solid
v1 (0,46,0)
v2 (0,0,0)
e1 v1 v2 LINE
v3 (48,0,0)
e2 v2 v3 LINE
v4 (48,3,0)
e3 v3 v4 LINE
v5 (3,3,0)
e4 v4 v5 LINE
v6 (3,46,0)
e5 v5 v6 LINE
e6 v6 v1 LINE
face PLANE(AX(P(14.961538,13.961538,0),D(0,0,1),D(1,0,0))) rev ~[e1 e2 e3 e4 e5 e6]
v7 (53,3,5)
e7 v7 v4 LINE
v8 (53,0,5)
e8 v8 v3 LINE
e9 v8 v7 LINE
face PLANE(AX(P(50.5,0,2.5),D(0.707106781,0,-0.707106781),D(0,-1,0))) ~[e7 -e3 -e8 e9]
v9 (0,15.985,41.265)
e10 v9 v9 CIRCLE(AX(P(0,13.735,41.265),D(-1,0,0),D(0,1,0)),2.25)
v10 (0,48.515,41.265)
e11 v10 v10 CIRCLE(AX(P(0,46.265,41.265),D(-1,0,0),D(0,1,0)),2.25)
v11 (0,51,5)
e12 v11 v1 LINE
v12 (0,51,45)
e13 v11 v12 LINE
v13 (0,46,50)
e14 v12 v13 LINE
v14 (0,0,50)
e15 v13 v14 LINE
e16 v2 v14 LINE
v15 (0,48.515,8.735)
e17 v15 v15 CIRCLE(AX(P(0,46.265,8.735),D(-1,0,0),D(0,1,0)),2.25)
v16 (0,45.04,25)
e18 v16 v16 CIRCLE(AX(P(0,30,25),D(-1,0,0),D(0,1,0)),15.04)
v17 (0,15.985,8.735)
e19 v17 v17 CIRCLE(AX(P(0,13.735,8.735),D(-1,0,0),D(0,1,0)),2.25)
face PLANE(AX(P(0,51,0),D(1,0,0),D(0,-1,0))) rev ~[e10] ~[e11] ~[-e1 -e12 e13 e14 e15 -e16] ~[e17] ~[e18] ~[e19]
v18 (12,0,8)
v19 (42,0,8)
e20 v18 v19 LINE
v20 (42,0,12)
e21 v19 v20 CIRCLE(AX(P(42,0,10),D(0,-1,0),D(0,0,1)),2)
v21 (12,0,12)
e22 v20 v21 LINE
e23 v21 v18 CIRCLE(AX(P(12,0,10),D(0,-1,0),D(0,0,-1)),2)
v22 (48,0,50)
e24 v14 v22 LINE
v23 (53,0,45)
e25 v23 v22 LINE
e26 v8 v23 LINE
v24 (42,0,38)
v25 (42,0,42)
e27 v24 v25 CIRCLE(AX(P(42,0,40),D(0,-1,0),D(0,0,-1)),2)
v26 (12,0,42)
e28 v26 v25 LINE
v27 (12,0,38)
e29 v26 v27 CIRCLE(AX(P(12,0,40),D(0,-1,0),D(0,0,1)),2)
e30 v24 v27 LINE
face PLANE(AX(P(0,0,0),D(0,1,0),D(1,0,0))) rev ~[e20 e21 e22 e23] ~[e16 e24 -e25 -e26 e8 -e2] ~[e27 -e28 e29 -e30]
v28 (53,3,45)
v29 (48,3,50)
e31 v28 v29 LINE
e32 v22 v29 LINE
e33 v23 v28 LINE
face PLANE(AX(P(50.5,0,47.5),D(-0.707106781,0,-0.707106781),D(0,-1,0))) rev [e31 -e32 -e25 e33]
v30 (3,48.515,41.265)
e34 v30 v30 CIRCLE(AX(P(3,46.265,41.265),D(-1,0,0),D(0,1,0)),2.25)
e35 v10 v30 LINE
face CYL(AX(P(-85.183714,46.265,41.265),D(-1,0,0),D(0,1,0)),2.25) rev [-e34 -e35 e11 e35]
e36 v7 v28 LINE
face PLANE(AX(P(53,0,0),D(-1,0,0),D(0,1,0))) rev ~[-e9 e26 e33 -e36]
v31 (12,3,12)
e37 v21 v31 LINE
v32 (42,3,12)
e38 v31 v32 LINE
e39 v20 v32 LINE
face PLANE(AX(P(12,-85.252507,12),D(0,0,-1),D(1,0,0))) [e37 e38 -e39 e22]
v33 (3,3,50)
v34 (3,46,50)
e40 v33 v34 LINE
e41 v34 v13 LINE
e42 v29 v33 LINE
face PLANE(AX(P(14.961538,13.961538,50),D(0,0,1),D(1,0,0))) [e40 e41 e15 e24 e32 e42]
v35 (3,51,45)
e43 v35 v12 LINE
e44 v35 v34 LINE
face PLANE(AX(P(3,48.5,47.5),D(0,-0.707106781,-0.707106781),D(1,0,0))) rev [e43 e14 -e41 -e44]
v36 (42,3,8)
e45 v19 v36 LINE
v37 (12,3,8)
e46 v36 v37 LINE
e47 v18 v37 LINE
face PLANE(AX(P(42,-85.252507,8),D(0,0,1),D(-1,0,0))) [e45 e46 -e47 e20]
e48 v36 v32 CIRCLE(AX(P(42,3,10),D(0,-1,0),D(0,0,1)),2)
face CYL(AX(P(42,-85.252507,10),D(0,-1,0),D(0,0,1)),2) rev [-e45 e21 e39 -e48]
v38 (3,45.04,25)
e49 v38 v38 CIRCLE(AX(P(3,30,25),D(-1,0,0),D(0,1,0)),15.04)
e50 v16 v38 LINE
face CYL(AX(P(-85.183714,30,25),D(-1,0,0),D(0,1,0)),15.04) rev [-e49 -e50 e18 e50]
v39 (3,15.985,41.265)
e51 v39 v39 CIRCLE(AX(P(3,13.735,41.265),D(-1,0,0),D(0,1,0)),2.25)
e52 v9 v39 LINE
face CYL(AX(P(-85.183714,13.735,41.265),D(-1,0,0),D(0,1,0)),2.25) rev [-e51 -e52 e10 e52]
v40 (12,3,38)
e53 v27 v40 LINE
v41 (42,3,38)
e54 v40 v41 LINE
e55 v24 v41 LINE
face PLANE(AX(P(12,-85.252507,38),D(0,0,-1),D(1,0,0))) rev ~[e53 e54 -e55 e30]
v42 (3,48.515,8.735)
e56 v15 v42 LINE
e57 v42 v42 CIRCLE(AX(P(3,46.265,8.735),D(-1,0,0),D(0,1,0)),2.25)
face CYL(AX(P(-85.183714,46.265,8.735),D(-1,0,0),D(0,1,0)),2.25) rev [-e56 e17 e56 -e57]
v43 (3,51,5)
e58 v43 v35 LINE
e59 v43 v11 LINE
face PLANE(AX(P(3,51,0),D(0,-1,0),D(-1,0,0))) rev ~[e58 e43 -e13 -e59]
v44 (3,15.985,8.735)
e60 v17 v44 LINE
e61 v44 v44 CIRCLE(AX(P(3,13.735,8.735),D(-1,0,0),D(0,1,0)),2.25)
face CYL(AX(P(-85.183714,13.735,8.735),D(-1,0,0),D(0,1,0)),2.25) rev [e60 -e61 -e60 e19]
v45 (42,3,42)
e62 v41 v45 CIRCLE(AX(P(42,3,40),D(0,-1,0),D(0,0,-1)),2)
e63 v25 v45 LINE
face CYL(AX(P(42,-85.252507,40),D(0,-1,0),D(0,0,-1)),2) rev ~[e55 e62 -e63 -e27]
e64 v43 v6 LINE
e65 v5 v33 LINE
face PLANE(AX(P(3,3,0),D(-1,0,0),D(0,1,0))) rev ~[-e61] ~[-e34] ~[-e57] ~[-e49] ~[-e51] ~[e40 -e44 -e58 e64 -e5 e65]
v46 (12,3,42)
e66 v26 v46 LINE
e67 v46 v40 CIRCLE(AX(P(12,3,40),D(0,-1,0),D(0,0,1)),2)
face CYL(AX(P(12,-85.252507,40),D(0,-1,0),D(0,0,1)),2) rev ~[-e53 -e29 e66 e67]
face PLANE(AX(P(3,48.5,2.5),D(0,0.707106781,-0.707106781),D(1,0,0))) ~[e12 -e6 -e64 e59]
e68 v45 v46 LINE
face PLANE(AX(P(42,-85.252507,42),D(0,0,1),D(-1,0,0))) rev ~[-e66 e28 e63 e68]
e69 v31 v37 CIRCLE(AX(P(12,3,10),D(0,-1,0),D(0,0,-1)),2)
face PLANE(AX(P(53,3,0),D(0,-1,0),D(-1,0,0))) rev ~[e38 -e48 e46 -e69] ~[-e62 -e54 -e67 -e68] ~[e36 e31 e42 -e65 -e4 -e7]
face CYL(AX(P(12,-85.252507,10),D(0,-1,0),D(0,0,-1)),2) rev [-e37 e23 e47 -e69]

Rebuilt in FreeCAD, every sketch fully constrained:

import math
import FreeCAD as App
import Part
import Sketcher
from FreeCAD import Vector
Q = App.Units.Quantity


def edges_at(feature, points):
    """Names of the edges that pass closest to the given points."""
    edges = feature.Shape.Edges
    near = lambda p: min(range(len(edges)), key=lambda i: edges[i].distToShape(Part.Vertex(*p))[0])
    return sorted({f"Edge{near(p) + 1}" for p in points})

doc = App.newDocument("Part")
body = doc.addObject("PartDesign::Body", "Body")

# Sketch on XY plane
sketch1 = doc.addObject("Sketcher::SketchObject", "Sketch")
body.addObject(sketch1)
sketch1.AttachmentSupport = (doc.XY_Plane, [""])
sketch1.MapMode = "FlatFace"
sketch1.addGeometry([
    Part.LineSegment(Vector(0, 0, 0), Vector(53, 0, 0)),  # 0
    Part.LineSegment(Vector(53, 0, 0), Vector(53, 3, 0)),  # 1
    Part.LineSegment(Vector(53, 3, 0), Vector(3, 3, 0)),  # 2
    Part.LineSegment(Vector(3, 3, 0), Vector(3, 51, 0)),  # 3
    Part.LineSegment(Vector(3, 51, 0), Vector(0, 51, 0)),  # 4
    Part.LineSegment(Vector(0, 51, 0), Vector(0, 0, 0)),  # 5
], False)
sketch1.addConstraint([
    Sketcher.Constraint("Coincident", 0, 2, 1, 1),
    Sketcher.Constraint("Coincident", 1, 2, 2, 1),
    Sketcher.Constraint("Coincident", 2, 2, 3, 1),
    Sketcher.Constraint("Coincident", 3, 2, 4, 1),
    Sketcher.Constraint("Coincident", 4, 2, 5, 1),
    Sketcher.Constraint("Coincident", 5, 2, 0, 1),
    Sketcher.Constraint("Horizontal", 0),
    Sketcher.Constraint("Vertical", 1),
    Sketcher.Constraint("Horizontal", 2),
    Sketcher.Constraint("Vertical", 3),
    Sketcher.Constraint("Horizontal", 4),
    Sketcher.Constraint("Vertical", 5),
    Sketcher.Constraint("Coincident", 5, 2, -1, 1),
    Sketcher.Constraint("Equal", 4, 1),
    Sketcher.Constraint("DistanceX", 0, 1, 0, 2, Q("53 mm")),
    Sketcher.Constraint("DistanceX", 2, 2, 2, 1, Q("50 mm")),
    Sketcher.Constraint("DistanceY", 3, 1, 3, 2, Q("48 mm")),
])
pad1 = doc.addObject("PartDesign::Pad", "Pad")
body.addObject(pad1)
pad1.Profile = sketch1
pad1.Length = 50
doc.recompute()

chamfer = doc.addObject("PartDesign::Chamfer", "Chamfer")
body.addObject(chamfer)
chamfer.Base = (pad1, edges_at(pad1, [
    (53, 1.5, 50),
    (1.5, 51, 50),
    (1.5, 51, 0),
    (53, 1.5, 0),
]))
chamfer.Size = 5

# Sketch on YZ plane
sketch2 = doc.addObject("Sketcher::SketchObject", "Sketch001")
body.addObject(sketch2)
sketch2.AttachmentSupport = (doc.YZ_Plane, [""])
sketch2.MapMode = "FlatFace"
sketch2.AttachmentOffset = App.Placement(Vector(0, 0, 3), App.Rotation())
sketch2.addGeometry([
    Part.Circle(Vector(30, 25, 0), Vector(0, 0, 1), 15.04),  # 0
    Part.Circle(Vector(46.265, 8.735, 0), Vector(0, 0, 1), 2.25),  # 1
    Part.Circle(Vector(46.265, 41.265, 0), Vector(0, 0, 1), 2.25),  # 2
    Part.Circle(Vector(13.735, 8.735, 0), Vector(0, 0, 1), 2.25),  # 3
    Part.Circle(Vector(13.735, 41.265, 0), Vector(0, 0, 1), 2.25),  # 4
], False)
sketch2.addConstraint([
    Sketcher.Constraint("Equal", 1, 2),
    Sketcher.Constraint("Equal", 2, 3),
    Sketcher.Constraint("Equal", 3, 4),
    Sketcher.Constraint("Horizontal", 1, 3, 3, 3),
    Sketcher.Constraint("Horizontal", 2, 3, 4, 3),
    Sketcher.Constraint("Vertical", 1, 3, 2, 3),
    Sketcher.Constraint("Vertical", 3, 3, 4, 3),
    Sketcher.Constraint("Diameter", 1, Q("4.5 mm")),
    Sketcher.Constraint("Diameter", 0, Q("30.08 mm")),
    Sketcher.Constraint("DistanceX", -1, 1, 0, 3, Q("30 mm")),
    Sketcher.Constraint("DistanceY", -1, 1, 0, 3, Q("25 mm")),
    Sketcher.Constraint("DistanceY", 1, 3, 2, 3, Q("32.53 mm")),
    Sketcher.Constraint("DistanceX", 3, 3, 1, 3, Q("32.53 mm")),
    Sketcher.Constraint("DistanceX", -1, 1, 1, 3, Q("46.265 mm")),
    Sketcher.Constraint("DistanceY", -1, 1, 1, 3, Q("8.735 mm")),
])
pocket1 = doc.addObject("PartDesign::Pocket", "Pocket")
body.addObject(pocket1)
pocket1.Profile = sketch2
pocket1.Type = "ThroughAll"
pocket1.Midplane = True

# Sketch on XZ plane
sketch3 = doc.addObject("Sketcher::SketchObject", "Sketch002")
body.addObject(sketch3)
sketch3.AttachmentSupport = (doc.XZ_Plane, [""])
sketch3.MapMode = "FlatFace"
sketch3.AttachmentOffset = App.Placement(Vector(0, 0, -3), App.Rotation())
sketch3.addGeometry([
    Part.LineSegment(Vector(12, 12, 0), Vector(42, 12, 0)),  # 0
    Part.ArcOfCircle(Part.Circle(Vector(42, 10, 0), Vector(0, 0, 1), 2), math.radians(-90), math.radians(90)),  # 1
    Part.LineSegment(Vector(42, 8, 0), Vector(12, 8, 0)),  # 2
    Part.ArcOfCircle(Part.Circle(Vector(12, 10, 0), Vector(0, 0, 1), 2), math.radians(90), math.radians(270)),  # 3
    Part.LineSegment(Vector(42, 38, 0), Vector(12, 38, 0)),  # 4
    Part.ArcOfCircle(Part.Circle(Vector(12, 40, 0), Vector(0, 0, 1), 2), math.radians(90), math.radians(270)),  # 5
    Part.LineSegment(Vector(12, 42, 0), Vector(42, 42, 0)),  # 6
    Part.ArcOfCircle(Part.Circle(Vector(42, 40, 0), Vector(0, 0, 1), 2), math.radians(-90), math.radians(90)),  # 7
], False)
sketch3.addConstraint([
    Sketcher.Constraint("Tangent", 0, 2, 1, 2),
    Sketcher.Constraint("Tangent", 1, 1, 2, 1),
    Sketcher.Constraint("Tangent", 2, 2, 3, 2),
    Sketcher.Constraint("Tangent", 3, 1, 0, 1),
    Sketcher.Constraint("Tangent", 4, 2, 5, 2),
    Sketcher.Constraint("Tangent", 5, 1, 6, 1),
    Sketcher.Constraint("Tangent", 6, 2, 7, 2),
    Sketcher.Constraint("Tangent", 7, 1, 4, 1),
    Sketcher.Constraint("Horizontal", 0),
    Sketcher.Constraint("Horizontal", 2),
    Sketcher.Constraint("Horizontal", 4),
    Sketcher.Constraint("Horizontal", 6),
    Sketcher.Constraint("Equal", 3, 5),
    Sketcher.Constraint("Vertical", 3, 3, 5, 3),
    Sketcher.Constraint("Vertical", 1, 3, 7, 3),
    Sketcher.Constraint("Radius", 1, Q("2 mm")),
    Sketcher.Constraint("DistanceX", 0, 1, 0, 2, Q("30 mm")),
    Sketcher.Constraint("DistanceX", -1, 1, 1, 3, Q("42 mm")),
    Sketcher.Constraint("DistanceY", -1, 1, 1, 3, Q("10 mm")),
    Sketcher.Constraint("DistanceY", -1, 1, 5, 3, Q("40 mm")),
])
pocket2 = doc.addObject("PartDesign::Pocket", "Pocket001")
body.addObject(pocket2)
pocket2.Profile = sketch3
pocket2.Type = "ThroughAll"
pocket2.Midplane = True

doc.recompute()
